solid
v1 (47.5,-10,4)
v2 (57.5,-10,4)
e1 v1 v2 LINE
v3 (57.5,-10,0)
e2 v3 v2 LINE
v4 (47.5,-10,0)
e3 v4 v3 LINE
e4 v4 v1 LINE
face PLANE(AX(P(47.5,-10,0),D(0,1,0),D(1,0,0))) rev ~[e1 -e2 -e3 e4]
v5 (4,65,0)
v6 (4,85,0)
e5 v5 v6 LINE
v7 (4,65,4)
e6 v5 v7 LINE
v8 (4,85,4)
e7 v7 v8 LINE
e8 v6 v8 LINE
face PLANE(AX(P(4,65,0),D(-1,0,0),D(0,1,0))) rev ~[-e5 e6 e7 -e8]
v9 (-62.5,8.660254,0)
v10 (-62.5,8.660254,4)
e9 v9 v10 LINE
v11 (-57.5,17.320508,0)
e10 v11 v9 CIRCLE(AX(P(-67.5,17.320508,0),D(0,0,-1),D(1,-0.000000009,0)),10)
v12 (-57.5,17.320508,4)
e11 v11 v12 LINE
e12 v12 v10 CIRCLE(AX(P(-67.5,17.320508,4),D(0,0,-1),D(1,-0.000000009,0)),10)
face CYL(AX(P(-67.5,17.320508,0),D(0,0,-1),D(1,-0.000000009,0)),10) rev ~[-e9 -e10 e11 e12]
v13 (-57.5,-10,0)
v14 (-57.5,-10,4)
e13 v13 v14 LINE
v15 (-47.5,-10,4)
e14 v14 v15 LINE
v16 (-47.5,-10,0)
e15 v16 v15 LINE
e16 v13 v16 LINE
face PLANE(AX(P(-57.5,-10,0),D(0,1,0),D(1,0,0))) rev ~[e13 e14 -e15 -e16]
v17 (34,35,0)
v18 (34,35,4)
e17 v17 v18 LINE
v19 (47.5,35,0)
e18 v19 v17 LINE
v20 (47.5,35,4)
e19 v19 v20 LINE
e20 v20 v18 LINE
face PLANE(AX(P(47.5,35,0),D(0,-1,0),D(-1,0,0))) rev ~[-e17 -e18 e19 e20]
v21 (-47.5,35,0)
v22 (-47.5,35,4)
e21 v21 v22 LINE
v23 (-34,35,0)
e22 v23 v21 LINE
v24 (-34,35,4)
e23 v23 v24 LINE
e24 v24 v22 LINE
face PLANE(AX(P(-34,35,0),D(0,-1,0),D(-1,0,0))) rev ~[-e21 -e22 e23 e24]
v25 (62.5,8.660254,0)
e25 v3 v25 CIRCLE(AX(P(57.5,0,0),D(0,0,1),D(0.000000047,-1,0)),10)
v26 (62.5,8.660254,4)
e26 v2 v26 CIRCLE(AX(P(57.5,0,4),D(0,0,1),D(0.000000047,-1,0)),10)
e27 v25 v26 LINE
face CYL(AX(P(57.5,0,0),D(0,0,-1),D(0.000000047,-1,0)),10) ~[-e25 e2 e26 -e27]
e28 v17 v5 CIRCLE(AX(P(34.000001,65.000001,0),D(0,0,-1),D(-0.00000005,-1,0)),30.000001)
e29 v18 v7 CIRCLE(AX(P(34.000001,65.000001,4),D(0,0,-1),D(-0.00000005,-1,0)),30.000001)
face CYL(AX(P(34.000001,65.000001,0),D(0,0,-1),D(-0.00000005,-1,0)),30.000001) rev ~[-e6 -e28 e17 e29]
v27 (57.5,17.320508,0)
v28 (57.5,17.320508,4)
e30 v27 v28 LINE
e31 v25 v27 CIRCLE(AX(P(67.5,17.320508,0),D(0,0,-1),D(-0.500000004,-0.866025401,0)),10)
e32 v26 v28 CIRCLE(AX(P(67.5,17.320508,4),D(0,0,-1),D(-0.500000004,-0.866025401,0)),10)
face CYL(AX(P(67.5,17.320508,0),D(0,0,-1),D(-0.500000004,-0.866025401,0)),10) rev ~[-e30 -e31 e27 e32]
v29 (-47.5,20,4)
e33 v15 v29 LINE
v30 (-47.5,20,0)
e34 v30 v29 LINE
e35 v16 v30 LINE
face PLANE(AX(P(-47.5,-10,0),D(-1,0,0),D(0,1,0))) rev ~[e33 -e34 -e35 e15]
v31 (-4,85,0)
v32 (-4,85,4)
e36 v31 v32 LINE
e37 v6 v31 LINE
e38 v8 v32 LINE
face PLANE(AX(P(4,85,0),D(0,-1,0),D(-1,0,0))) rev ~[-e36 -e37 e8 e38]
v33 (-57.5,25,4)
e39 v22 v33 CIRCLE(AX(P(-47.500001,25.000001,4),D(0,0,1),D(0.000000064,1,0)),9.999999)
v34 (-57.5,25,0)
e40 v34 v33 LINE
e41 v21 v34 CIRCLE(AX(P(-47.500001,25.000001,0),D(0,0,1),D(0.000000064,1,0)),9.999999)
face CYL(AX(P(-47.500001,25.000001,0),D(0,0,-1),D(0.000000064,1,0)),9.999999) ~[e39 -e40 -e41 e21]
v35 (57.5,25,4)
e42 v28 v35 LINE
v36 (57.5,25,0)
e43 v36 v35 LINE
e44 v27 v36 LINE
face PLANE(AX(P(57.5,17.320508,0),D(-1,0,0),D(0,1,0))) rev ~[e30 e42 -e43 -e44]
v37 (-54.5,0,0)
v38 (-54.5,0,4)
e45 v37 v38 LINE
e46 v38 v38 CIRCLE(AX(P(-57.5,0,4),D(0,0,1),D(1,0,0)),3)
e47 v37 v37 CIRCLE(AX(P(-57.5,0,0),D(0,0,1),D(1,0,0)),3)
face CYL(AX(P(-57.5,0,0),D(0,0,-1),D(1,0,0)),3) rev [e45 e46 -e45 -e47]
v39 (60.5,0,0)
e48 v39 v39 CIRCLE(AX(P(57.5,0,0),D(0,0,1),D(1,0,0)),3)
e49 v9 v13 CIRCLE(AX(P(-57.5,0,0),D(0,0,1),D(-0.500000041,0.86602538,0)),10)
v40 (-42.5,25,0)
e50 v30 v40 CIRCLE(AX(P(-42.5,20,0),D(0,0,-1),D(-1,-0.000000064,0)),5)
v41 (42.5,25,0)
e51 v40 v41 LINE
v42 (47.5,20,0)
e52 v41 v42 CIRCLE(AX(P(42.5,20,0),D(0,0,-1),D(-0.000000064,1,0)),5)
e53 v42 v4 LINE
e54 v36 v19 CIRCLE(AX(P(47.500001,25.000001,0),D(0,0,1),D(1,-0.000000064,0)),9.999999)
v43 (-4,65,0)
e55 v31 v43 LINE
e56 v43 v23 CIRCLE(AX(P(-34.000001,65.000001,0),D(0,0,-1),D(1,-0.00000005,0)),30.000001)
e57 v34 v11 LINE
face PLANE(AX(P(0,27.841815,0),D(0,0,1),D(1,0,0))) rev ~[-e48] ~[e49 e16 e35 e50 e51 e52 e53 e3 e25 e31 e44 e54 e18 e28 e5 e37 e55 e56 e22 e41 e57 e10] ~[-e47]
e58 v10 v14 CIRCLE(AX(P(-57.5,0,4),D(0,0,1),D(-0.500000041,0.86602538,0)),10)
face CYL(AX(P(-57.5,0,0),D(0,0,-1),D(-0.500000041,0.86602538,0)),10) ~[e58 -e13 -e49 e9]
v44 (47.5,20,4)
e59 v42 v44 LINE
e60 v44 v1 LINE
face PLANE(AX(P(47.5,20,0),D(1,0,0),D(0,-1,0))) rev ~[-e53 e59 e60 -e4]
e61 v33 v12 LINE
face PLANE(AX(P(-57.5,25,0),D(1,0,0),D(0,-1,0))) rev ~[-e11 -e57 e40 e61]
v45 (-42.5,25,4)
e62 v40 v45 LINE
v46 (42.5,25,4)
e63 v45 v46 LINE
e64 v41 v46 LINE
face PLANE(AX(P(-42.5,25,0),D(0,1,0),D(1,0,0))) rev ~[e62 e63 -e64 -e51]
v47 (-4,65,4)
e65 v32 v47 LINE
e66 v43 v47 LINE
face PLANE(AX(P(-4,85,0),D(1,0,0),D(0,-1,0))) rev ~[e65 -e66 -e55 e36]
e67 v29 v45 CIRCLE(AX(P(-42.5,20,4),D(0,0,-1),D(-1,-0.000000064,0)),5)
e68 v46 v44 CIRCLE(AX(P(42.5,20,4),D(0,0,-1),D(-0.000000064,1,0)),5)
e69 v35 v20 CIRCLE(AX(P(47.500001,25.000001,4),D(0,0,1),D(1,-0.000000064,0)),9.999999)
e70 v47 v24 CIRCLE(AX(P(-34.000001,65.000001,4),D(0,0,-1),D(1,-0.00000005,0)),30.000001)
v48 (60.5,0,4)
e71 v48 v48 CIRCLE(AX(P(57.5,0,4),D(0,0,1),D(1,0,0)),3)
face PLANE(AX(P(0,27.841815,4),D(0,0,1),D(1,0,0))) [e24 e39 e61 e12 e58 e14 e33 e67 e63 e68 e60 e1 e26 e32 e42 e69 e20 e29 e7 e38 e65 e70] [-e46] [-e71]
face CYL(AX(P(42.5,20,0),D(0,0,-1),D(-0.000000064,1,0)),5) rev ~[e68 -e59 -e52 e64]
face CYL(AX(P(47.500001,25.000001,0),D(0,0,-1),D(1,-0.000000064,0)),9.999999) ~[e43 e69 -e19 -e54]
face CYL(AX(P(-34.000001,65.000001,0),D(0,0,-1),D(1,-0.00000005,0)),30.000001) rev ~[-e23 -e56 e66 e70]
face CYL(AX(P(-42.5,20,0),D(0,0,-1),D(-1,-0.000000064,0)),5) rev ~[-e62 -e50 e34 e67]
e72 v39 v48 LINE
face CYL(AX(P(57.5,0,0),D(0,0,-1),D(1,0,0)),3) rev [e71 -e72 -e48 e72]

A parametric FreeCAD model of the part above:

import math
import FreeCAD as App
import Part
import Sketcher
Q = App.Units.Quantity

doc = App.newDocument("Part")
body = doc.addObject("PartDesign::Body", "Body")

sketch1 = body.newObject("Sketcher::SketchObject", "Sketch")
sketch1.AttachmentSupport = (doc.getObject("XY_Plane"), [""])
sketch1.MapMode = "FlatFace"
sketch1.addGeometry([
    Part.ArcOfCircle(Part.Circle(App.Vector(-67.5, 17.3, 0), App.Vector(0, 0, 1), 10), math.radians(-60), math.radians(0)),
    Part.ArcOfCircle(Part.Circle(App.Vector(-57.5, 0, 0), App.Vector(0, 0, 1), 10), math.radians(120), math.radians(270)),
    Part.LineSegment(App.Vector(-57.5, -10, 0), App.Vector(-47.5, -10, 0)),
    Part.LineSegment(App.Vector(-47.5, -10, 0), App.Vector(-47.5, 20, 0)),
    Part.ArcOfCircle(Part.Circle(App.Vector(-42.5, 20, 0), App.Vector(0, 0, 1), 5), math.radians(90), math.radians(180)),
    Part.LineSegment(App.Vector(-42.5, 25, 0), App.Vector(42.5, 25, 0)),
    Part.ArcOfCircle(Part.Circle(App.Vector(42.5, 20, 0), App.Vector(0, 0, 1), 5), math.radians(0), math.radians(90)),
    Part.LineSegment(App.Vector(47.5, 20, 0), App.Vector(47.5, -10, 0)),
    Part.LineSegment(App.Vector(47.5, -10, 0), App.Vector(57.5, -10, 0)),
    Part.ArcOfCircle(Part.Circle(App.Vector(57.5, 0, 0), App.Vector(0, 0, 1), 10), math.radians(-90), math.radians(60)),
    Part.ArcOfCircle(Part.Circle(App.Vector(67.5, 17.3, 0), App.Vector(0, 0, 1), 10), math.radians(-180), math.radians(-120)),
    Part.LineSegment(App.Vector(57.5, 17.3, 0), App.Vector(57.5, 25, 0)),
    Part.ArcOfCircle(Part.Circle(App.Vector(47.5, 25, 0), App.Vector(0, 0, 1), 10), math.radians(0), math.radians(90)),
    Part.LineSegment(App.Vector(47.5, 35, 0), App.Vector(34, 35, 0)),
    Part.ArcOfCircle(Part.Circle(App.Vector(34, 65, 0), App.Vector(0, 0, 1), 30), math.radians(-180), math.radians(-90)),
    Part.LineSegment(App.Vector(4, 65, 0), App.Vector(4, 85, 0)),
    Part.LineSegment(App.Vector(4, 85, 0), App.Vector(-4, 85, 0)),
    Part.LineSegment(App.Vector(-4, 85, 0), App.Vector(-4, 65, 0)),
    Part.ArcOfCircle(Part.Circle(App.Vector(-34, 65, 0), App.Vector(0, 0, 1), 30), math.radians(-90), math.radians(0)),
    Part.LineSegment(App.Vector(-34, 35, 0), App.Vector(-47.5, 35, 0)),
    Part.ArcOfCircle(Part.Circle(App.Vector(-47.5, 25, 0), App.Vector(0, 0, 1), 10), math.radians(90), math.radians(180)),
    Part.LineSegment(App.Vector(-57.5, 25, 0), App.Vector(-57.5, 17.3, 0)),
    Part.Circle(App.Vector(-57.5, 0, 0), App.Vector(0, 0, 1), 3),
    Part.Circle(App.Vector(57.5, 0, 0), App.Vector(0, 0, 1), 3),
], False)
sketch1.addConstraint([
    Sketcher.Constraint("Tangent", 0, 1, 1, 1),
    Sketcher.Constraint("Tangent", 1, 2, 2, 1),
    Sketcher.Constraint("Coincident", 2, 2, 3, 1),
    Sketcher.Constraint("Tangent", 3, 2, 4, 2),
    Sketcher.Constraint("Tangent", 4, 1, 5, 1),
    Sketcher.Constraint("Tangent", 5, 2, 6, 2),
    Sketcher.Constraint("Tangent", 6, 1, 7, 1),
    Sketcher.Constraint("Coincident", 7, 2, 8, 1),
    Sketcher.Constraint("Tangent", 8, 2, 9, 1),
    Sketcher.Constraint("Tangent", 9, 2, 10, 2),
    Sketcher.Constraint("Tangent", 10, 1, 11, 1),
    Sketcher.Constraint("Tangent", 11, 2, 12, 1),
    Sketcher.Constraint("Tangent", 12, 2, 13, 1),
    Sketcher.Constraint("Tangent", 13, 2, 14, 2),
    Sketcher.Constraint("Tangent", 14, 1, 15, 1),
    Sketcher.Constraint("Coincident", 15, 2, 16, 1),
    Sketcher.Constraint("Coincident", 16, 2, 17, 1),
    Sketcher.Constraint("Tangent", 17, 2, 18, 2),
    Sketcher.Constraint("Tangent", 18, 1, 19, 1),
    Sketcher.Constraint("Tangent", 19, 2, 20, 1),
    Sketcher.Constraint("Tangent", 20, 2, 21, 1),
    Sketcher.Constraint("Tangent", 21, 2, 0, 2),
    Sketcher.Constraint("Horizontal", 2),
    Sketcher.Constraint("Vertical", 3),
    Sketcher.Constraint("Horizontal", 5),
    Sketcher.Constraint("Vertical", 7),
    Sketcher.Constraint("Horizontal", 8),
    Sketcher.Constraint("Vertical", 11),
    Sketcher.Constraint("Horizontal", 13),
    Sketcher.Constraint("Vertical", 15),
    Sketcher.Constraint("Horizontal", 16),
    Sketcher.Constraint("Vertical", 17),
    Sketcher.Constraint("Horizontal", 19),
    Sketcher.Constraint("Vertical", 21),
    Sketcher.Constraint("Coincident", 22, 3, 1, 3),
    Sketcher.Constraint("Coincident", 23, 3, 9, 3),
    Sketcher.Constraint("Equal", 0, 1),
    Sketcher.Constraint("Equal", 4, 6),
    Sketcher.Constraint("Equal", 1, 9),
    Sketcher.Constraint("Equal", 9, 10),
    Sketcher.Constraint("Equal", 10, 12),
    Sketcher.Constraint("Equal", 14, 18),
    Sketcher.Constraint("Equal", 12, 20),
    Sketcher.Constraint("Equal", 22, 23),
    Sketcher.Constraint("Symmetric", 1, 3, 9, 3, -1, 1),
    Sketcher.Constraint("Symmetric", 0, 3, 10, 3, -2),
    Sketcher.Constraint("Symmetric", 14, 3, 18, 3, -2),
    Sketcher.Constraint("Horizontal", 20, 3, 4, 1),
    Sketcher.Constraint("Vertical", 20, 3, 2, 2),
    Sketcher.Constraint("Vertical", 12, 3, 6, 1),
    Sketcher.Constraint("Vertical", 8, 2, 10, 1),
    Sketcher.Constraint("Diameter", 22, Q("6 mm")),
    Sketcher.Constraint("Radius", 0, Q("10 mm")),
    Sketcher.Constraint("Radius", 4, Q("5 mm")),
    Sketcher.Constraint("Radius", 14, Q("30.000001 mm")),
    Sketcher.Constraint("DistanceX", 5, 1, 5, 2, Q("85 mm")),
    Sketcher.Constraint("DistanceX", 16, 2, 16, 1, Q("8 mm")),
    Sketcher.Constraint("DistanceY", 3, 1, 3, 2, Q("30 mm")),
    Sketcher.Constraint("DistanceY", 15, 1, 15, 2, Q("20 mm")),
])
pad1 = body.newObject("PartDesign::Pad", "Pad")
pad1.Profile = sketch1
pad1.Length = 4

doc.recompute()
